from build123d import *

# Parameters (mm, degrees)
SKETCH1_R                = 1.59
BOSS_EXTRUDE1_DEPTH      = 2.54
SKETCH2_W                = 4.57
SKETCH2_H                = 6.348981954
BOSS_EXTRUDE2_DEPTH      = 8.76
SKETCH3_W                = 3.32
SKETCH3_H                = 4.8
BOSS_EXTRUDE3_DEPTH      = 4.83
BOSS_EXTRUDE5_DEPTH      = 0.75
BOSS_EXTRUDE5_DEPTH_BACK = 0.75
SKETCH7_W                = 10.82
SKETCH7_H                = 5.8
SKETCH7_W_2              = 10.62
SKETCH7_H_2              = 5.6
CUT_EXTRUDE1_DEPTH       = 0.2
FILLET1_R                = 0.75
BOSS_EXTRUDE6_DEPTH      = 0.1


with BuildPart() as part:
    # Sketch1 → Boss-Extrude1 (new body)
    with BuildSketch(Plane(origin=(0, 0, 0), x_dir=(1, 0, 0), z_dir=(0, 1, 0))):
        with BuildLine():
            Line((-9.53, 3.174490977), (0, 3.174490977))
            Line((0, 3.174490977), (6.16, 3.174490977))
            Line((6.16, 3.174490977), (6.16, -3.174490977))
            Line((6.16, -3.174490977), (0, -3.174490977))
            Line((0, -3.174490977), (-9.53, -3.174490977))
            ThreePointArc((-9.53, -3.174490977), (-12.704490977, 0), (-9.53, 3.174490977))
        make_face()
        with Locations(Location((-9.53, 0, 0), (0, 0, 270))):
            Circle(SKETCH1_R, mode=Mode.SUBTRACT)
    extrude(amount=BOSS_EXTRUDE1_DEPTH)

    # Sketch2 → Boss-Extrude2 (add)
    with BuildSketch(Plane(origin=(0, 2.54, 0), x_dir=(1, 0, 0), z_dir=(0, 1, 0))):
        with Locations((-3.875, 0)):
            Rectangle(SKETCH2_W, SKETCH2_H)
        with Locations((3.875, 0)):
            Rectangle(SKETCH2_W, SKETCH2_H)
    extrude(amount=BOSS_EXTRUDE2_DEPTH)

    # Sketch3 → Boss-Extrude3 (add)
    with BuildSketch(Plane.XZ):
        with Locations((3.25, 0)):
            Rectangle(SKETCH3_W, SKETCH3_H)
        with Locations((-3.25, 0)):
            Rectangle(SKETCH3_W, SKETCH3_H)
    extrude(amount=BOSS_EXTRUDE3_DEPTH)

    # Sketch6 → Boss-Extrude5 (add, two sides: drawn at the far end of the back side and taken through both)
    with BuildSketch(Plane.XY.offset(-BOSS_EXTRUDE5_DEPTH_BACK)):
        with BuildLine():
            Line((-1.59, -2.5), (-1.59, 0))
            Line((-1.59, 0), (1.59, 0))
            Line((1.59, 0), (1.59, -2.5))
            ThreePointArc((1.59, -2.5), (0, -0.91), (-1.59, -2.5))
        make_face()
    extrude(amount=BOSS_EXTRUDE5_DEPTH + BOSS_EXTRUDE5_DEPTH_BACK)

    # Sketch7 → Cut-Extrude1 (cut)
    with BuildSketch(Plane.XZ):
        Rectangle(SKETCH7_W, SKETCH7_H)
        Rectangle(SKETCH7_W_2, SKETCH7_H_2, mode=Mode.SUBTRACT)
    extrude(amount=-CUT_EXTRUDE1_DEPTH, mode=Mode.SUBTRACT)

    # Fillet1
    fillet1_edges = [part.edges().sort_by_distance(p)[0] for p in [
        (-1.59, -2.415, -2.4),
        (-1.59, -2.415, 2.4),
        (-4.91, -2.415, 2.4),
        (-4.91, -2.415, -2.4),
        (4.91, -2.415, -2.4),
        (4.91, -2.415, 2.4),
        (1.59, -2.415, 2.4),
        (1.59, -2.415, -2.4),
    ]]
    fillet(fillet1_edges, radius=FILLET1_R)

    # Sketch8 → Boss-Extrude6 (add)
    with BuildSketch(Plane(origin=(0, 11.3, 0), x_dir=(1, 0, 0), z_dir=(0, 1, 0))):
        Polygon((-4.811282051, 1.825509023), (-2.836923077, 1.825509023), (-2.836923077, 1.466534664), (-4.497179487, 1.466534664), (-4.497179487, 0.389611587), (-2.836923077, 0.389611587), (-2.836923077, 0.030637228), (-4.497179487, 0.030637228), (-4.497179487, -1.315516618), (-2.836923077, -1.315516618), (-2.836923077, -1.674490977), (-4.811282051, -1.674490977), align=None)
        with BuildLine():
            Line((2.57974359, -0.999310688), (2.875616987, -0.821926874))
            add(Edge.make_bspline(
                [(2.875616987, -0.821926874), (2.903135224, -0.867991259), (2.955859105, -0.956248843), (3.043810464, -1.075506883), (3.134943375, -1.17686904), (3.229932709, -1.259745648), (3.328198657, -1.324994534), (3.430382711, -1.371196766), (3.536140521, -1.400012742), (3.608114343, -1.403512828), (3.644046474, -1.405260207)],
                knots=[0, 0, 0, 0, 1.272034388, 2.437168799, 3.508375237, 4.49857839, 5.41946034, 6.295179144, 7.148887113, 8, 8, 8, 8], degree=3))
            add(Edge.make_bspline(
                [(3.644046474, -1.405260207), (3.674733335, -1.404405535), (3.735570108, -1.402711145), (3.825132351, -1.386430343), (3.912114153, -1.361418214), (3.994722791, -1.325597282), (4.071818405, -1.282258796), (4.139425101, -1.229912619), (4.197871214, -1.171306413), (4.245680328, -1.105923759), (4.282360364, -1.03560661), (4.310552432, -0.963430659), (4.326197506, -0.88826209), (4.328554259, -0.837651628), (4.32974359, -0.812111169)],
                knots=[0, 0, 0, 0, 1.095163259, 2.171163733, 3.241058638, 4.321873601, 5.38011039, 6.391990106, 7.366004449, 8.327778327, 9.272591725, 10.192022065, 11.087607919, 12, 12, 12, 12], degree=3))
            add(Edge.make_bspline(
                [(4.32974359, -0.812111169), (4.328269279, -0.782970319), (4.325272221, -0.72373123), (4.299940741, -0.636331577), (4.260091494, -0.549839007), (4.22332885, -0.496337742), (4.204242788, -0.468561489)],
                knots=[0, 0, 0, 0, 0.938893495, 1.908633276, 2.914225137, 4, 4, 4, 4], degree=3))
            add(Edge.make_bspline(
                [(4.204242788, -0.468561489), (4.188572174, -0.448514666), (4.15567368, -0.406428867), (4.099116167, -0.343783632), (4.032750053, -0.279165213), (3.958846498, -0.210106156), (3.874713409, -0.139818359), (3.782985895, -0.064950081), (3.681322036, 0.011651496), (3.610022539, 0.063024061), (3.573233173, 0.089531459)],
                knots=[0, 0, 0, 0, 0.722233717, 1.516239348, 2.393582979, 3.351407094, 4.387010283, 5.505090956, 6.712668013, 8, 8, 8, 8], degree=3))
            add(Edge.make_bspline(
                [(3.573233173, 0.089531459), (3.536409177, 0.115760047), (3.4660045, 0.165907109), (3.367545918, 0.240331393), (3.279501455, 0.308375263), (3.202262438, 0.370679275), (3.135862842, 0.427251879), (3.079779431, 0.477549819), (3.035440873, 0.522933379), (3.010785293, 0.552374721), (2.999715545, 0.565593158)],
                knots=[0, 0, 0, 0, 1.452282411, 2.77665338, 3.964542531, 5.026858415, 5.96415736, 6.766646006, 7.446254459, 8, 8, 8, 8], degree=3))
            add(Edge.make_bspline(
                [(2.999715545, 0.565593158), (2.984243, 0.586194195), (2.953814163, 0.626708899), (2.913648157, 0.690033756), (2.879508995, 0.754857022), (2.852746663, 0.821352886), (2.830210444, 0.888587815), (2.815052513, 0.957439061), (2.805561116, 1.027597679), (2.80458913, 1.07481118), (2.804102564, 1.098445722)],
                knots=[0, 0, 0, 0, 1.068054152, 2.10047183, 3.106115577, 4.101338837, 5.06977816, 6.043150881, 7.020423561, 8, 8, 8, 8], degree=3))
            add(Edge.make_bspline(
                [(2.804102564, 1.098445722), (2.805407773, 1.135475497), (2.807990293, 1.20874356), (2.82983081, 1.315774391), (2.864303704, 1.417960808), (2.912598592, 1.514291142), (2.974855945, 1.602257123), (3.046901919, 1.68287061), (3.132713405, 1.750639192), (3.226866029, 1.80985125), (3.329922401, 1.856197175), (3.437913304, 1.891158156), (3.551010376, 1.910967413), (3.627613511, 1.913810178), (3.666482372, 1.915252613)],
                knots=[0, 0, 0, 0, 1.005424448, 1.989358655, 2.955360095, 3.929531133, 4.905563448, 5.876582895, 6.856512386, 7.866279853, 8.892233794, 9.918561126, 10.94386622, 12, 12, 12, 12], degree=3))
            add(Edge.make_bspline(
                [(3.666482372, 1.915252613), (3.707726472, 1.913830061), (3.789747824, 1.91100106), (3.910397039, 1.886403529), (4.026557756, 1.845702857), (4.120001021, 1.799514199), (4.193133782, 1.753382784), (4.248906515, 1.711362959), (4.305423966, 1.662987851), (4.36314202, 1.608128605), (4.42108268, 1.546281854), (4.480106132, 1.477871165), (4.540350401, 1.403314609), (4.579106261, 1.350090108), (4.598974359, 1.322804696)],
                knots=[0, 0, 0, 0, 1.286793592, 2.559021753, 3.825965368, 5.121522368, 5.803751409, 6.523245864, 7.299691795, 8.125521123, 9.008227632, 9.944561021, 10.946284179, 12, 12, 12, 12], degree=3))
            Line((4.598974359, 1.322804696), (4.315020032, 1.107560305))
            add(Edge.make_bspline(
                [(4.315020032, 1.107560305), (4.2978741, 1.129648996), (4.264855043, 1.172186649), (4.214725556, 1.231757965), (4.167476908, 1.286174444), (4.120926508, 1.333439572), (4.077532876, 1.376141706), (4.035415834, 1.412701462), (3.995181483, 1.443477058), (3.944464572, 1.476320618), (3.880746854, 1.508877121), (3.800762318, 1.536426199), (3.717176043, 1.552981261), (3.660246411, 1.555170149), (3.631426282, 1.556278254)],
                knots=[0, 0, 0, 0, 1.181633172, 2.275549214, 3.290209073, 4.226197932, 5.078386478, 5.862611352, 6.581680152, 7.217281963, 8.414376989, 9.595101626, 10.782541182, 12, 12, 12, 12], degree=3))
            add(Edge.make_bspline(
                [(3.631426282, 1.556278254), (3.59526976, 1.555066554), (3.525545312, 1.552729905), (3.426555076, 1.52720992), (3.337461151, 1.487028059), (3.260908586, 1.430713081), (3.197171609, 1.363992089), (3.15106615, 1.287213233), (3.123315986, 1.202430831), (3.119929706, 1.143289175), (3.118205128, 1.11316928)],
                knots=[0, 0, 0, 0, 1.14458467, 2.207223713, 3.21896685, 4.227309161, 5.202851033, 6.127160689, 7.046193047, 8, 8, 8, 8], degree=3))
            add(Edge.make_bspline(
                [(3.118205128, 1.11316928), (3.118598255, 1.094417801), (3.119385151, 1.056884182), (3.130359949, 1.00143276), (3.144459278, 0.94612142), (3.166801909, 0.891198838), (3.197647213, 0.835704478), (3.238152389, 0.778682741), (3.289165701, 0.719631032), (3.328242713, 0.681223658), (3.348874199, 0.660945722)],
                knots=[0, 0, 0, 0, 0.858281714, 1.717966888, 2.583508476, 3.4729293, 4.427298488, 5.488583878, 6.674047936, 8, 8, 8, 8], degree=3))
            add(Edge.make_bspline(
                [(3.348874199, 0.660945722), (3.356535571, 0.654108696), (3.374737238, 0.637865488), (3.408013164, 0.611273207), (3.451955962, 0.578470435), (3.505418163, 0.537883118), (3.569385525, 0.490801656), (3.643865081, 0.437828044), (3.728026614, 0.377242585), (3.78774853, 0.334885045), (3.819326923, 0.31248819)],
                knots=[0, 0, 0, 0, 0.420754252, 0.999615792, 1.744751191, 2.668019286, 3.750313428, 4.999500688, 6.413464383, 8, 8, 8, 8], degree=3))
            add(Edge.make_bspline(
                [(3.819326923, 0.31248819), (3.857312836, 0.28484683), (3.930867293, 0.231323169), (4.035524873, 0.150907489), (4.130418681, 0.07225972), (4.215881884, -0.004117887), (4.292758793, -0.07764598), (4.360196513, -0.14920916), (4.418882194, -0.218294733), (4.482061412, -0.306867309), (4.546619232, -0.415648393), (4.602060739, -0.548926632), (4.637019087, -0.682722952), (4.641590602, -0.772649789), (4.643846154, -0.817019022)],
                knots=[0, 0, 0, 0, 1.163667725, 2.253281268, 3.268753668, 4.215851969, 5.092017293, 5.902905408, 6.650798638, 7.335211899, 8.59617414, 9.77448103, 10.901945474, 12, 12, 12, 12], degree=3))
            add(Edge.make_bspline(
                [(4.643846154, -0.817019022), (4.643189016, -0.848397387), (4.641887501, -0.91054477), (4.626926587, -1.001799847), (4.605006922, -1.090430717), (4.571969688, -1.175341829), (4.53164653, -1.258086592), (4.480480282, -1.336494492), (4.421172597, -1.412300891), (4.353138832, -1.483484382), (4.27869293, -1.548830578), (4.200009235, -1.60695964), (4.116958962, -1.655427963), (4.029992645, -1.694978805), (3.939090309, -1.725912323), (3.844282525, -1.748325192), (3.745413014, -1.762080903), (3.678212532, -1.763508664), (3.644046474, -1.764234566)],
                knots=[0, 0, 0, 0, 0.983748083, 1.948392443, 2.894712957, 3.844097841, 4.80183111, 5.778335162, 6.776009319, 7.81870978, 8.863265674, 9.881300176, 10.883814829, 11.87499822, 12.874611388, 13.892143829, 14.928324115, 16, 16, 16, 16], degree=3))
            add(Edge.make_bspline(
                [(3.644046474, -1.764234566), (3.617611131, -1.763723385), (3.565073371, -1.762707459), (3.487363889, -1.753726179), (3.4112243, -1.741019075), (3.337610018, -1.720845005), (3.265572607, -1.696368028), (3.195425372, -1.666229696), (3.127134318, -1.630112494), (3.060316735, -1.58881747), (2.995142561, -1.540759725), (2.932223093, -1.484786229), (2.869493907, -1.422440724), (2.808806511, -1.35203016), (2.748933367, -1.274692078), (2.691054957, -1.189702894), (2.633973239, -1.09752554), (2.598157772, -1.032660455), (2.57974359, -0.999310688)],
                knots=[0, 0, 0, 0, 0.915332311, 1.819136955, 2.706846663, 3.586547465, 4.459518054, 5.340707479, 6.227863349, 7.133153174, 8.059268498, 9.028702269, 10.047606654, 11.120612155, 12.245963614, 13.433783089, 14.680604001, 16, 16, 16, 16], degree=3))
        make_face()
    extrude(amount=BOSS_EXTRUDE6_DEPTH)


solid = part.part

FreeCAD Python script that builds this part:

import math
import FreeCAD as App
import Part
import Sketcher
from FreeCAD import Vector
Q = App.Units.Quantity


def edges_at(feature, points):
    """Names of the edges that pass closest to the given points."""
    edges = feature.Shape.Edges
    near = lambda p: min(range(len(edges)), key=lambda i: edges[i].distToShape(Part.Vertex(*p))[0])
    return sorted({f"Edge{near(p) + 1}" for p in points})


def add_polygon(sketch, points):
    """Adds a closed chain of lines whose ends are joined by coincident constraints."""
    first, n = sketch.GeometryCount, len(points)
    for a, b in zip(points, points[1:] + points[:1]):
        sketch.addGeometry(Part.LineSegment(App.Vector(*a, 0), App.Vector(*b, 0)), False)
    for i in range(n):
        sketch.addConstraint(Sketcher.Constraint("Coincident", first + i, 2, first + (i + 1) % n, 1))

doc = App.newDocument("Part")
body = doc.addObject("PartDesign::Body", "Body")

# Sketch on XZ plane
sketch1 = doc.addObject("Sketcher::SketchObject", "Sketch")
body.addObject(sketch1)
sketch1.AttachmentSupport = (doc.XZ_Plane, [""])
sketch1.MapMode = "FlatFace"
sketch1.addGeometry([
    Part.LineSegment(Vector(6.2, -3.2, 0), Vector(-9.5, -3.2, 0)),  # 0
    Part.ArcOfCircle(Part.Circle(Vector(-9.5, 0, 0), Vector(0, 0, 1), 3.2), math.radians(90), math.radians(270)),  # 1
    Part.LineSegment(Vector(-9.5, 3.2, 0), Vector(6.2, 3.2, 0)),  # 2
    Part.LineSegment(Vector(6.2, 3.2, 0), Vector(6.2, -3.2, 0)),  # 3
    Part.Circle(Vector(-9.5, 0, 0), Vector(0, 0, 1), 1.6),  # 4
], False)
sketch1.addConstraint([
    Sketcher.Constraint("Tangent", 0, 2, 1, 2),
    Sketcher.Constraint("Tangent", 1, 1, 2, 1),
    Sketcher.Constraint("Coincident", 2, 2, 3, 1),
    Sketcher.Constraint("Coincident", 3, 2, 0, 1),
    Sketcher.Constraint("Horizontal", 0),
    Sketcher.Constraint("Horizontal", 2),
    Sketcher.Constraint("Vertical", 3),
    Sketcher.Constraint("Coincident", 4, 3, 1, 3),
    Sketcher.Constraint("PointOnObject", 1, 3, -1),
    Sketcher.Constraint("Diameter", 4, Q("3.18 mm")),
    Sketcher.Constraint("DistanceX", 0, 2, 0, 1, Q("15.69 mm")),
    Sketcher.Constraint("DistanceX", 1, 3, -1, 1, Q("9.53 mm")),
    Sketcher.Constraint("Radius", 1, Q("3.174491 mm")),
])
pad1 = doc.addObject("PartDesign::Pad", "Pad")
body.addObject(pad1)
pad1.Profile = sketch1
pad1.Length = 2.54
pad1.Reversed = True

# Sketch on XZ plane
sketch2 = doc.addObject("Sketcher::SketchObject", "Sketch001")
body.addObject(sketch2)
sketch2.AttachmentSupport = (doc.XZ_Plane, [""])
sketch2.MapMode = "FlatFace"
sketch2.AttachmentOffset = App.Placement(Vector(0, 0, -2.54), App.Rotation())
add_polygon(sketch2, [(-6.2, -3.2), (-6.2, 3.2), (-1.6, 3.2), (-1.6, -3.2)])  # lines 0-3
add_polygon(sketch2, [(1.6, -3.2), (1.6, 3.2), (6.2, 3.2), (6.2, -3.2)])  # lines 4-7
sketch2.addConstraint([
    Sketcher.Constraint("Vertical", 0),
    Sketcher.Constraint("Horizontal", 1),
    Sketcher.Constraint("Vertical", 2),
    Sketcher.Constraint("Horizontal", 3),
    Sketcher.Constraint("Vertical", 4),
    Sketcher.Constraint("Horizontal", 5),
    Sketcher.Constraint("Vertical", 6),
    Sketcher.Constraint("Horizontal", 7),
    Sketcher.Constraint("Symmetric", 2, 2, 4, 2, -1, 1),
    Sketcher.Constraint("Symmetric", 0, 2, 6, 2, -1, 1),
    Sketcher.Constraint("Horizontal", 1, 2, 4, 2),
    Sketcher.Constraint("DistanceX", 1, 1, 1, 2, Q("4.57 mm")),
    Sketcher.Constraint("DistanceX", 0, 2, -1, 1, Q("6.16 mm")),
    Sketcher.Constraint("DistanceY", 0, 1, 0, 2, Q("6.348982 mm")),
])
pad2 = doc.addObject("PartDesign::Pad", "Pad001")
body.addObject(pad2)
pad2.Profile = sketch2
pad2.Length = 8.76
pad2.Reversed = True

# Sketch on XZ plane
sketch3 = doc.addObject("Sketcher::SketchObject", "Sketch002")
body.addObject(sketch3)
sketch3.AttachmentSupport = (doc.XZ_Plane, [""])
sketch3.MapMode = "FlatFace"
add_polygon(sketch3, [(1.6, 2.4), (1.6, -2.4), (4.9, -2.4), (4.9, 2.4)])  # lines 0-3
add_polygon(sketch3, [(-4.9, 2.4), (-4.9, -2.4), (-1.6, -2.4), (-1.6, 2.4)])  # lines 4-7
sketch3.addConstraint([
    Sketcher.Constraint("Vertical", 0),
    Sketcher.Constraint("Horizontal", 1),
    Sketcher.Constraint("Vertical", 2),
    Sketcher.Constraint("Horizontal", 3),
    Sketcher.Constraint("Vertical", 4),
    Sketcher.Constraint("Horizontal", 5),
    Sketcher.Constraint("Vertical", 6),
    Sketcher.Constraint("Horizontal", 7),
    Sketcher.Constraint("Symmetric", 2, 2, 4, 2, -1, 1),
    Sketcher.Constraint("Symmetric", 0, 2, 6, 2, -1, 1),
    Sketcher.Constraint("Horizontal", 1, 2, 4, 2),
    Sketcher.Constraint("DistanceY", 0, 2, 0, 1, Q("4.8 mm")),
    Sketcher.Constraint("DistanceX", 1, 1, 1, 2, Q("3.32 mm")),
    Sketcher.Constraint("DistanceX", 4, 2, 0, 2, Q("6.5 mm")),
])
pad3 = doc.addObject("PartDesign::Pad", "Pad002")
body.addObject(pad3)
pad3.Profile = sketch3
pad3.Length = 4.83

# Sketch on XY plane
sketch4 = doc.addObject("Sketcher::SketchObject", "Sketch003")
body.addObject(sketch4)
sketch4.AttachmentSupport = (doc.XY_Plane, [""])
sketch4.MapMode = "FlatFace"
sketch4.addGeometry([
    Part.LineSegment(Vector(-1.6, 0, 0), Vector(-1.6, -2.5, 0)),
    Part.ArcOfCircle(Part.Circle(Vector(0, -2.5, 0), Vector(0, 0, 1), 1.6), math.radians(0), math.radians(180)),
    Part.LineSegment(Vector(1.6, -2.5, 0), Vector(1.6, 0, 0)),
    Part.LineSegment(Vector(1.6, 0, 0), Vector(-1.6, 0, 0)),
], False)
sketch4.addConstraint([
    Sketcher.Constraint("Tangent", 0, 2, 1, 2),
    Sketcher.Constraint("Tangent", 1, 1, 2, 1),
    Sketcher.Constraint("Coincident", 2, 2, 3, 1),
    Sketcher.Constraint("Coincident", 3, 2, 0, 1),
    Sketcher.Constraint("Vertical", 0),
    Sketcher.Constraint("Vertical", 2),
    Sketcher.Constraint("Horizontal", 3),
    Sketcher.Constraint("Symmetric", 2, 2, 3, 2, -1, 1),
    Sketcher.Constraint("Radius", 1, Q("1.59 mm")),
    Sketcher.Constraint("DistanceY", 0, 2, 0, 1, Q("2.5 mm")),
])
pad4 = doc.addObject("PartDesign::Pad", "Pad003")
body.addObject(pad4)
pad4.Profile = sketch4
pad4.Type = "TwoLengths"
pad4.Length = 0.75
pad4.Length2 = 0.75

# Sketch on XZ plane
sketch5 = doc.addObject("Sketcher::SketchObject", "Sketch004")
body.addObject(sketch5)
sketch5.AttachmentSupport = (doc.XZ_Plane, [""])
sketch5.MapMode = "FlatFace"
add_polygon(sketch5, [(-5, 3), (-5, -3), (5, -3), (5, 3)])  # lines 0-3
add_polygon(sketch5, [(5, -3), (-5, -3), (-5, 3), (5, 3)])  # lines 4-7
sketch5.addConstraint([
    Sketcher.Constraint("Vertical", 0),
    Sketcher.Constraint("Horizontal", 1),
    Sketcher.Constraint("Vertical", 2),
    Sketcher.Constraint("Horizontal", 3),
    Sketcher.Constraint("Horizontal", 4),
    Sketcher.Constraint("Vertical", 5),
    Sketcher.Constraint("Horizontal", 6),
    Sketcher.Constraint("Vertical", 7),
    Sketcher.Constraint("Symmetric", 0, 2, 2, 2, -1, 1),
    Sketcher.Constraint("Symmetric", 4, 2, 6, 2, -1, 1),
    Sketcher.Constraint("DistanceY", 0, 2, 0, 1, Q("5.8 mm")),
    Sketcher.Constraint("DistanceY", 5, 1, 5, 2, Q("5.6 mm")),
    Sketcher.Constraint("DistanceX", 1, 1, 1, 2, Q("10.82 mm")),
    Sketcher.Constraint("DistanceX", 4, 2, 4, 1, Q("10.62 mm")),
])
pocket1 = doc.addObject("PartDesign::Pocket", "Pocket")
body.addObject(pocket1)
pocket1.Profile = sketch5
pocket1.Length = 0.2
doc.recompute()

fillet = doc.addObject("PartDesign::Fillet", "Fillet")
body.addObject(fillet)
fillet.Base = (pocket1, edges_at(pocket1, [
    (-1.59, -2.415, -2.4),
    (-1.59, -2.415, 2.4),
    (-4.91, -2.415, 2.4),
    (-4.91, -2.415, -2.4),
    (4.91, -2.415, -2.4),
    (4.91, -2.415, 2.4),
    (1.59, -2.415, 2.4),
    (1.59, -2.415, -2.4),
]))
fillet.Radius = 0.75

# Sketch on XZ plane
sketch6 = doc.addObject("Sketcher::SketchObject", "Sketch005")
body.addObject(sketch6)
sketch6.AttachmentSupport = (doc.XZ_Plane, [""])
sketch6.MapMode = "FlatFace"
sketch6.AttachmentOffset = App.Placement(Vector(0, 0, -11.3), App.Rotation())
add_polygon(sketch6, [(-2.836923, -1.825509), (-4.811282, -1.825509), (-4.811282, 1.674491), (-2.836923, 1.674491), (-2.836923, 1.315517), (-4.497179, 1.315517), (-4.497179, -0.030637), (-2.836923, -0.030637), (-2.836923, -0.389612), (-4.497179, -0.389612), (-4.497179, -1.466535), (-2.836923, -1.466535)])  # lines 0-11
sketch6.addGeometry(Part.LineSegment(Vector(2.875617, 0.821927, 0), Vector(2.579744, 0.999311, 0)), False)  # 12
sketch6.addGeometry(Part.BSplineCurve([Vector(3.644046, 1.764235, 0), Vector(3.617611, 1.763723, 0), Vector(3.565073, 1.762707, 0), Vector(3.487364, 1.753726, 0), Vector(3.411224, 1.741019, 0), Vector(3.33761, 1.720845, 0), Vector(3.265573, 1.696368, 0), Vector(3.195425, 1.66623, 0), Vector(3.127134, 1.630112, 0), Vector(3.060317, 1.588817, 0), Vector(2.995143, 1.54076, 0), Vector(2.932223, 1.484786, 0), Vector(2.869494, 1.422441, 0), Vector(2.808807, 1.35203, 0), Vector(2.748933, 1.274692, 0), Vector(2.691055, 1.189703, 0), Vector(2.633973, 1.097526, 0), Vector(2.598158, 1.03266, 0), Vector(2.579744, 0.999311, 0)], [4, 1, 1, 1, 1, 1, 1, 1, 1, 1, 1, 1, 1, 1, 1, 1, 4], [0, 0.915332311, 1.819136955, 2.706846663, 3.586547465, 4.459518054, 5.340707479, 6.227863349, 7.133153174, 8.059268498, 9.028702269, 10.047606654, 11.120612155, 12.245963614, 13.433783089, 14.680604001, 16], False, 3, [1, 1, 1, 1, 1, 1, 1, 1, 1, 1, 1, 1, 1, 1, 1, 1, 1, 1, 1], False), False)  # 13
sketch6.addGeometry(Part.BSplineCurve([Vector(4.643846, 0.817019, 0), Vector(4.643189, 0.848397, 0), Vector(4.641888, 0.910545, 0), Vector(4.626927, 1.0018, 0), Vector(4.605007, 1.090431, 0), Vector(4.57197, 1.175342, 0), Vector(4.531647, 1.258087, 0), Vector(4.48048, 1.336494, 0), Vector(4.421173, 1.412301, 0), Vector(4.353139, 1.483484, 0), Vector(4.278693, 1.548831, 0), Vector(4.200009, 1.60696, 0), Vector(4.116959, 1.655428, 0), Vector(4.029993, 1.694979, 0), Vector(3.93909, 1.725912, 0), Vector(3.844283, 1.748325, 0), Vector(3.745413, 1.762081, 0), Vector(3.678213, 1.763509, 0), Vector(3.644046, 1.764235, 0)], [4, 1, 1, 1, 1, 1, 1, 1, 1, 1, 1, 1, 1, 1, 1, 1, 4], [0, 0.983748083, 1.948392443, 2.894712957, 3.844097841, 4.80183111, 5.778335162, 6.776009319, 7.81870978, 8.863265674, 9.881300176, 10.883814829, 11.87499822, 12.874611388, 13.892143829, 14.928324115, 16], False, 3, [1, 1, 1, 1, 1, 1, 1, 1, 1, 1, 1, 1, 1, 1, 1, 1, 1, 1, 1], False), False)  # 14
sketch6.addGeometry(Part.BSplineCurve([Vector(3.819327, -0.312488, 0), Vector(3.857313, -0.284847, 0), Vector(3.930867, -0.231323, 0), Vector(4.035525, -0.150907, 0), Vector(4.130419, -0.07226, 0), Vector(4.215882, 0.004118, 0), Vector(4.292759, 0.077646, 0), Vector(4.360197, 0.149209, 0), Vector(4.418882, 0.218295, 0), Vector(4.482061, 0.306867, 0), Vector(4.546619, 0.415648, 0), Vector(4.602061, 0.548927, 0), Vector(4.637019, 0.682723, 0), Vector(4.641591, 0.77265, 0), Vector(4.643846, 0.817019, 0)], [4, 1, 1, 1, 1, 1, 1, 1, 1, 1, 1, 1, 4], [0, 1.163667725, 2.253281268, 3.268753668, 4.215851969, 5.092017293, 5.902905408, 6.650798638, 7.335211899, 8.59617414, 9.77448103, 10.901945474, 12], False, 3, [1, 1, 1, 1, 1, 1, 1, 1, 1, 1, 1, 1, 1, 1, 1], False), False)  # 15
sketch6.addGeometry(Part.BSplineCurve([Vector(3.348874, -0.660946, 0), Vector(3.356536, -0.654109, 0), Vector(3.374737, -0.637865, 0), Vector(3.408013, -0.611273, 0), Vector(3.451956, -0.57847, 0), Vector(3.505418, -0.537883, 0), Vector(3.569386, -0.490802, 0), Vector(3.643865, -0.437828, 0), Vector(3.728027, -0.377243, 0), Vector(3.787749, -0.334885, 0), Vector(3.819327, -0.312488, 0)], [4, 1, 1, 1, 1, 1, 1, 1, 4], [0, 0.420754252, 0.999615792, 1.744751191, 2.668019286, 3.750313428, 4.999500688, 6.413464383, 8], False, 3, [1, 1, 1, 1, 1, 1, 1, 1, 1, 1, 1], False), False)  # 16
sketch6.addGeometry(Part.BSplineCurve([Vector(3.118205, -1.113169, 0), Vector(3.118598, -1.094418, 0), Vector(3.119385, -1.056884, 0), Vector(3.13036, -1.001433, 0), Vector(3.144459, -0.946121, 0), Vector(3.166802, -0.891199, 0), Vector(3.197647, -0.835704, 0), Vector(3.238152, -0.778683, 0), Vector(3.289166, -0.719631, 0), Vector(3.328243, -0.681224, 0), Vector(3.348874, -0.660946, 0)], [4, 1, 1, 1, 1, 1, 1, 1, 4], [0, 0.858281714, 1.717966888, 2.583508476, 3.4729293, 4.427298488, 5.488583878, 6.674047936, 8], False, 3, [1, 1, 1, 1, 1, 1, 1, 1, 1, 1, 1], False), False)  # 17
sketch6.addGeometry(Part.BSplineCurve([Vector(3.631426, -1.556278, 0), Vector(3.59527, -1.555067, 0), Vector(3.525545, -1.55273, 0), Vector(3.426555, -1.52721, 0), Vector(3.337461, -1.487028, 0), Vector(3.260909, -1.430713, 0), Vector(3.197172, -1.363992, 0), Vector(3.151066, -1.287213, 0), Vector(3.123316, -1.202431, 0), Vector(3.11993, -1.143289, 0), Vector(3.118205, -1.113169, 0)], [4, 1, 1, 1, 1, 1, 1, 1, 4], [0, 1.14458467, 2.207223713, 3.21896685, 4.227309161, 5.202851033, 6.127160689, 7.046193047, 8], False, 3, [1, 1, 1, 1, 1, 1, 1, 1, 1, 1, 1], False), False)  # 18
sketch6.addGeometry(Part.BSplineCurve([Vector(4.31502, -1.10756, 0), Vector(4.297874, -1.129649, 0), Vector(4.264855, -1.172187, 0), Vector(4.214726, -1.231758, 0), Vector(4.167477, -1.286174, 0), Vector(4.120927, -1.33344, 0), Vector(4.077533, -1.376142, 0), Vector(4.035416, -1.412701, 0), Vector(3.995181, -1.443477, 0), Vector(3.944465, -1.476321, 0), Vector(3.880747, -1.508877, 0), Vector(3.800762, -1.536426, 0), Vector(3.717176, -1.552981, 0), Vector(3.660246, -1.55517, 0), Vector(3.631426, -1.556278, 0)], [4, 1, 1, 1, 1, 1, 1, 1, 1, 1, 1, 1, 4], [0, 1.181633172, 2.275549214, 3.290209073, 4.226197932, 5.078386478, 5.862611352, 6.581680152, 7.217281963, 8.414376989, 9.595101626, 10.782541182, 12], False, 3, [1, 1, 1, 1, 1, 1, 1, 1, 1, 1, 1, 1, 1, 1, 1], False), False)  # 19
sketch6.addGeometry(Part.LineSegment(Vector(4.31502, -1.10756, 0), Vector(4.598974, -1.322805, 0)), False)  # 20
sketch6.addGeometry(Part.BSplineCurve([Vector(3.666482, -1.915253, 0), Vector(3.707726, -1.91383, 0), Vector(3.789748, -1.911001, 0), Vector(3.910397, -1.886404, 0), Vector(4.026558, -1.845703, 0), Vector(4.120001, -1.799514, 0), Vector(4.193134, -1.753383, 0), Vector(4.248907, -1.711363, 0), Vector(4.305424, -1.662988, 0), Vector(4.363142, -1.608129, 0), Vector(4.421083, -1.546282, 0), Vector(4.480106, -1.477871, 0), Vector(4.54035, -1.403315, 0), Vector(4.579106, -1.35009, 0), Vector(4.598974, -1.322805, 0)], [4, 1, 1, 1, 1, 1, 1, 1, 1, 1, 1, 1, 4], [0, 1.286793592, 2.559021753, 3.825965368, 5.121522368, 5.803751409, 6.523245864, 7.299691795, 8.125521123, 9.008227632, 9.944561021, 10.946284179, 12], False, 3, [1, 1, 1, 1, 1, 1, 1, 1, 1, 1, 1, 1, 1, 1, 1], False), False)  # 21
sketch6.addGeometry(Part.BSplineCurve([Vector(2.804103, -1.098446, 0), Vector(2.805408, -1.135475, 0), Vector(2.80799, -1.208744, 0), Vector(2.829831, -1.315774, 0), Vector(2.864304, -1.417961, 0), Vector(2.912599, -1.514291, 0), Vector(2.974856, -1.602257, 0), Vector(3.046902, -1.682871, 0), Vector(3.132713, -1.750639, 0), Vector(3.226866, -1.809851, 0), Vector(3.329922, -1.856197, 0), Vector(3.437913, -1.891158, 0), Vector(3.55101, -1.910967, 0), Vector(3.627614, -1.91381, 0), Vector(3.666482, -1.915253, 0)], [4, 1, 1, 1, 1, 1, 1, 1, 1, 1, 1, 1, 4], [0, 1.005424448, 1.989358655, 2.955360095, 3.929531133, 4.905563448, 5.876582895, 6.856512386, 7.866279853, 8.892233794, 9.918561126, 10.94386622, 12], False, 3, [1, 1, 1, 1, 1, 1, 1, 1, 1, 1, 1, 1, 1, 1, 1], False), False)  # 22
sketch6.addGeometry(Part.BSplineCurve([Vector(2.999716, -0.565593, 0), Vector(2.984243, -0.586194, 0), Vector(2.953814, -0.626709, 0), Vector(2.913648, -0.690034, 0), Vector(2.879509, -0.754857, 0), Vector(2.852747, -0.821353, 0), Vector(2.83021, -0.888588, 0), Vector(2.815053, -0.957439, 0), Vector(2.805561, -1.027598, 0), Vector(2.804589, -1.074811, 0), Vector(2.804103, -1.098446, 0)], [4, 1, 1, 1, 1, 1, 1, 1, 4], [0, 1.068054152, 2.10047183, 3.106115577, 4.101338837, 5.06977816, 6.043150881, 7.020423561, 8], False, 3, [1, 1, 1, 1, 1, 1, 1, 1, 1, 1, 1], False), False)  # 23
sketch6.addGeometry(Part.BSplineCurve([Vector(3.573233, -0.089531, 0), Vector(3.536409, -0.11576, 0), Vector(3.466004, -0.165907, 0), Vector(3.367546, -0.240331, 0), Vector(3.279501, -0.308375, 0), Vector(3.202262, -0.370679, 0), Vector(3.135863, -0.427252, 0), Vector(3.079779, -0.47755, 0), Vector(3.035441, -0.522933, 0), Vector(3.010785, -0.552375, 0), Vector(2.999716, -0.565593, 0)], [4, 1, 1, 1, 1, 1, 1, 1, 4], [0, 1.452282411, 2.77665338, 3.964542531, 5.026858415, 5.96415736, 6.766646006, 7.446254459, 8], False, 3, [1, 1, 1, 1, 1, 1, 1, 1, 1, 1, 1], False), False)  # 24
sketch6.addGeometry(Part.BSplineCurve([Vector(4.204243, 0.468561, 0), Vector(4.188572, 0.448515, 0), Vector(4.155674, 0.406429, 0), Vector(4.099116, 0.343784, 0), Vector(4.03275, 0.279165, 0), Vector(3.958846, 0.210106, 0), Vector(3.874713, 0.139818, 0), Vector(3.782986, 0.06495, 0), Vector(3.681322, -0.011651, 0), Vector(3.610023, -0.063024, 0), Vector(3.573233, -0.089531, 0)], [4, 1, 1, 1, 1, 1, 1, 1, 4], [0, 0.722233717, 1.516239348, 2.393582979, 3.351407094, 4.387010283, 5.505090956, 6.712668013, 8], False, 3, [1, 1, 1, 1, 1, 1, 1, 1, 1, 1, 1], False), False)  # 25
sketch6.addGeometry(Part.BSplineCurve([Vector(4.329744, 0.812111, 0), Vector(4.328269, 0.78297, 0), Vector(4.325272, 0.723731, 0), Vector(4.299941, 0.636332, 0), Vector(4.260091, 0.549839, 0), Vector(4.223329, 0.496338, 0), Vector(4.204243, 0.468561, 0)], [4, 1, 1, 1, 4], [0, 0.938893495, 1.908633276, 2.914225137, 4], False, 3, [1, 1, 1, 1, 1, 1, 1], False), False)  # 26
sketch6.addGeometry(Part.BSplineCurve([Vector(3.644046, 1.40526, 0), Vector(3.674733, 1.404406, 0), Vector(3.73557, 1.402711, 0), Vector(3.825132, 1.38643, 0), Vector(3.912114, 1.361418, 0), Vector(3.994723, 1.325597, 0), Vector(4.071818, 1.282259, 0), Vector(4.139425, 1.229913, 0), Vector(4.197871, 1.171306, 0), Vector(4.24568, 1.105924, 0), Vector(4.28236, 1.035607, 0), Vector(4.310552, 0.963431, 0), Vector(4.326198, 0.888262, 0), Vector(4.328554, 0.837652, 0), Vector(4.329744, 0.812111, 0)], [4, 1, 1, 1, 1, 1, 1, 1, 1, 1, 1, 1, 4], [0, 1.095163259, 2.171163733, 3.241058638, 4.321873601, 5.38011039, 6.391990106, 7.366004449, 8.327778327, 9.272591725, 10.192022065, 11.087607919, 12], False, 3, [1, 1, 1, 1, 1, 1, 1, 1, 1, 1, 1, 1, 1, 1, 1], False), False)  # 27
sketch6.addGeometry(Part.BSplineCurve([Vector(2.875617, 0.821927, 0), Vector(2.903135, 0.867991, 0), Vector(2.955859, 0.956249, 0), Vector(3.04381, 1.075507, 0), Vector(3.134943, 1.176869, 0), Vector(3.229933, 1.259746, 0), Vector(3.328199, 1.324995, 0), Vector(3.430383, 1.371197, 0), Vector(3.536141, 1.400013, 0), Vector(3.608114, 1.403513, 0), Vector(3.644046, 1.40526, 0)], [4, 1, 1, 1, 1, 1, 1, 1, 4], [0, 1.272034388, 2.437168799, 3.508375237, 4.49857839, 5.41946034, 6.295179144, 7.148887113, 8], False, 3, [1, 1, 1, 1, 1, 1, 1, 1, 1, 1, 1], False), False)  # 28
sketch6.addConstraint([
    Sketcher.Constraint("Block", 13),
    Sketcher.Constraint("Block", 14),
    Sketcher.Constraint("Block", 15),
    Sketcher.Constraint("Block", 16),
    Sketcher.Constraint("Block", 17),
    Sketcher.Constraint("Block", 18),
    Sketcher.Constraint("Block", 19),
    Sketcher.Constraint("Block", 21),
    Sketcher.Constraint("Block", 22),
    Sketcher.Constraint("Block", 23),
    Sketcher.Constraint("Block", 24),
    Sketcher.Constraint("Block", 25),
    Sketcher.Constraint("Block", 26),
    Sketcher.Constraint("Block", 27),
    Sketcher.Constraint("Block", 28),
    Sketcher.Constraint("Coincident", 12, 2, 13, 2),
    Sketcher.Constraint("Coincident", 19, 1, 20, 1),
    Sketcher.Constraint("Coincident", 20, 2, 21, 2),
    Sketcher.Constraint("Coincident", 28, 1, 12, 1),
    Sketcher.Constraint("Horizontal", 0),
    Sketcher.Constraint("Vertical", 1),
    Sketcher.Constraint("Horizontal", 2),
    Sketcher.Constraint("Vertical", 3),
    Sketcher.Constraint("Horizontal", 4),
    Sketcher.Constraint("Vertical", 5),
    Sketcher.Constraint("Horizontal", 6),
    Sketcher.Constraint("Vertical", 7),
    Sketcher.Constraint("Horizontal", 8),
    Sketcher.Constraint("Vertical", 9),
    Sketcher.Constraint("Horizontal", 10),
    Sketcher.Constraint("Vertical", 11),
    Sketcher.Constraint("Vertical", 3, 2, 6, 2),
    Sketcher.Constraint("Vertical", 5, 2, 8, 2),
    Sketcher.Constraint("Vertical", 7, 2, 10, 2),
    Sketcher.Constraint("Equal", 3, 7),
    Sketcher.Constraint("Equal", 7, 11),
    Sketcher.Constraint("DistanceY", 1, 1, 1, 2, Q("3.5 mm")),
    Sketcher.Constraint("DistanceX", 0, 2, 0, 1, Q("1.974359 mm")),
    Sketcher.Constraint("DistanceX", 4, 2, 4, 1, Q("1.660256 mm")),
    Sketcher.Constraint("DistanceY", 3, 2, 3, 1, Q("0.358974 mm")),
    Sketcher.Constraint("DistanceY", 5, 2, 5, 1, Q("1.346154 mm")),
    Sketcher.Constraint("DistanceY", 0, 2, -1, 1, Q("1.825509 mm")),
    Sketcher.Constraint("DistanceX", 4, 2, -1, 1, Q("4.497179 mm")),
])
pad5 = doc.addObject("PartDesign::Pad", "Pad004")
body.addObject(pad5)
pad5.Profile = sketch6
pad5.Length = 0.1
pad5.Reversed = True

doc.recompute()
